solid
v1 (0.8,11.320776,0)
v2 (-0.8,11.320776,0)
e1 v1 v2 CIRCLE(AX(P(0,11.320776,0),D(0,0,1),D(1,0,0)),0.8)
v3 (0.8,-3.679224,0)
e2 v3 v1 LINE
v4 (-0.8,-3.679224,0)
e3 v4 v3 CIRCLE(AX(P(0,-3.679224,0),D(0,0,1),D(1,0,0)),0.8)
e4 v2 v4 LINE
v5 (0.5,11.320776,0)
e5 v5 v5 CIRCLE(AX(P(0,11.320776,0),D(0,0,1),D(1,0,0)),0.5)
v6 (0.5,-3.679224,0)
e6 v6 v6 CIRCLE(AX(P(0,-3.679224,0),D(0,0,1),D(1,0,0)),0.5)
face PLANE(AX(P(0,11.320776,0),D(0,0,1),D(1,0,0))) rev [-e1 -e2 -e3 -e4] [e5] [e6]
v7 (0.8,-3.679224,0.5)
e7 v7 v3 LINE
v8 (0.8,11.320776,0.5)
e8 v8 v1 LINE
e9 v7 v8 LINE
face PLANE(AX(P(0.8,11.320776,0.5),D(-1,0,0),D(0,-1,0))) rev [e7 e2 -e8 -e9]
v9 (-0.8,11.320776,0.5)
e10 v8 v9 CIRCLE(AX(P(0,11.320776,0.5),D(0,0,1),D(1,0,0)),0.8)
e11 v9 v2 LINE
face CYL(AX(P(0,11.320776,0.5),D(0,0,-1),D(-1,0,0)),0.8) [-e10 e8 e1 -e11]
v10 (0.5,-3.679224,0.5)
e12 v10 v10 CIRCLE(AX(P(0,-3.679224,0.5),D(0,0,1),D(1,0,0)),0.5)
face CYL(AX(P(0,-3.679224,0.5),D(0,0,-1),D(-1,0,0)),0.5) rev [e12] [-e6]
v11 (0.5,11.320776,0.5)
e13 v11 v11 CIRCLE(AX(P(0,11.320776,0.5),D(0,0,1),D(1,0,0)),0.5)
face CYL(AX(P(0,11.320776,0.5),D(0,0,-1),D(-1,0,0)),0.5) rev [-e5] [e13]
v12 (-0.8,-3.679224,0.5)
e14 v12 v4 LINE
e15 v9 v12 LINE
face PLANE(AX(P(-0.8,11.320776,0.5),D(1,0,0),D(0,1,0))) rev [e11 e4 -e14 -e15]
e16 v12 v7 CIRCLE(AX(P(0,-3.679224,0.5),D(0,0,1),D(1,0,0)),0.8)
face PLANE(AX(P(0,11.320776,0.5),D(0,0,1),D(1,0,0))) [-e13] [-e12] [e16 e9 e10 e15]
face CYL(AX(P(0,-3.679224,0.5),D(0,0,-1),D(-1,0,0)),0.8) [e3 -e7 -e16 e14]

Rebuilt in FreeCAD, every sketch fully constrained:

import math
import FreeCAD as App
import Part
import Sketcher
Q = App.Units.Quantity

doc = App.newDocument("Part")
body = doc.addObject("PartDesign::Body", "Body")

# Sketch on XY plane
sketch1 = body.newObject("Sketcher::SketchObject", "Sketch")
sketch1.AttachmentSupport = (doc.getObject("XY_Plane"), [""])
sketch1.MapMode = "FlatFace"
sketch1.addGeometry([
    Part.LineSegment(App.Vector(0.8, -3.7, 0), App.Vector(0.8, 11.3, 0)),  # 0
    Part.ArcOfCircle(Part.Circle(App.Vector(0, 11.3, 0), App.Vector(0, 0, 1), 0.8), math.radians(0), math.radians(180)),  # 1
    Part.LineSegment(App.Vector(-0.8, 11.3, 0), App.Vector(-0.8, -3.7, 0)),  # 2
    Part.ArcOfCircle(Part.Circle(App.Vector(0, -3.7, 0), App.Vector(0, 0, 1), 0.8), math.radians(180), math.radians(360)),  # 3
    Part.Circle(App.Vector(0, -3.7, 0), App.Vector(0, 0, 1), 0.5),  # 4
    Part.Circle(App.Vector(0, 11.3, 0), App.Vector(0, 0, 1), 0.5),  # 5
], False)
sketch1.addConstraint([
    Sketcher.Constraint("Tangent", 0, 2, 1, 1),
    Sketcher.Constraint("Tangent", 1, 2, 2, 1),
    Sketcher.Constraint("Tangent", 2, 2, 3, 1),
    Sketcher.Constraint("Tangent", 3, 2, 0, 1),
    Sketcher.Constraint("Vertical", 0),
    Sketcher.Constraint("Vertical", 2),
    Sketcher.Constraint("Coincident", 4, 3, 3, 3),
    Sketcher.Constraint("Coincident", 5, 3, 1, 3),
    Sketcher.Constraint("Equal", 4, 5),
    Sketcher.Constraint("PointOnObject", 1, 3, -2),
    Sketcher.Constraint("Diameter", 4, Q("1 mm")),
    Sketcher.Constraint("Radius", 1, Q("0.8 mm")),
    Sketcher.Constraint("DistanceY", 0, 1, 0, 2, Q("15 mm")),
    Sketcher.Constraint("DistanceY", -1, 1, 1, 3, Q("11.320776 mm")),
])
pad1 = body.newObject("PartDesign::Pad", "Pad")
pad1.Profile = sketch1
pad1.Length = 0.5

doc.recompute()
